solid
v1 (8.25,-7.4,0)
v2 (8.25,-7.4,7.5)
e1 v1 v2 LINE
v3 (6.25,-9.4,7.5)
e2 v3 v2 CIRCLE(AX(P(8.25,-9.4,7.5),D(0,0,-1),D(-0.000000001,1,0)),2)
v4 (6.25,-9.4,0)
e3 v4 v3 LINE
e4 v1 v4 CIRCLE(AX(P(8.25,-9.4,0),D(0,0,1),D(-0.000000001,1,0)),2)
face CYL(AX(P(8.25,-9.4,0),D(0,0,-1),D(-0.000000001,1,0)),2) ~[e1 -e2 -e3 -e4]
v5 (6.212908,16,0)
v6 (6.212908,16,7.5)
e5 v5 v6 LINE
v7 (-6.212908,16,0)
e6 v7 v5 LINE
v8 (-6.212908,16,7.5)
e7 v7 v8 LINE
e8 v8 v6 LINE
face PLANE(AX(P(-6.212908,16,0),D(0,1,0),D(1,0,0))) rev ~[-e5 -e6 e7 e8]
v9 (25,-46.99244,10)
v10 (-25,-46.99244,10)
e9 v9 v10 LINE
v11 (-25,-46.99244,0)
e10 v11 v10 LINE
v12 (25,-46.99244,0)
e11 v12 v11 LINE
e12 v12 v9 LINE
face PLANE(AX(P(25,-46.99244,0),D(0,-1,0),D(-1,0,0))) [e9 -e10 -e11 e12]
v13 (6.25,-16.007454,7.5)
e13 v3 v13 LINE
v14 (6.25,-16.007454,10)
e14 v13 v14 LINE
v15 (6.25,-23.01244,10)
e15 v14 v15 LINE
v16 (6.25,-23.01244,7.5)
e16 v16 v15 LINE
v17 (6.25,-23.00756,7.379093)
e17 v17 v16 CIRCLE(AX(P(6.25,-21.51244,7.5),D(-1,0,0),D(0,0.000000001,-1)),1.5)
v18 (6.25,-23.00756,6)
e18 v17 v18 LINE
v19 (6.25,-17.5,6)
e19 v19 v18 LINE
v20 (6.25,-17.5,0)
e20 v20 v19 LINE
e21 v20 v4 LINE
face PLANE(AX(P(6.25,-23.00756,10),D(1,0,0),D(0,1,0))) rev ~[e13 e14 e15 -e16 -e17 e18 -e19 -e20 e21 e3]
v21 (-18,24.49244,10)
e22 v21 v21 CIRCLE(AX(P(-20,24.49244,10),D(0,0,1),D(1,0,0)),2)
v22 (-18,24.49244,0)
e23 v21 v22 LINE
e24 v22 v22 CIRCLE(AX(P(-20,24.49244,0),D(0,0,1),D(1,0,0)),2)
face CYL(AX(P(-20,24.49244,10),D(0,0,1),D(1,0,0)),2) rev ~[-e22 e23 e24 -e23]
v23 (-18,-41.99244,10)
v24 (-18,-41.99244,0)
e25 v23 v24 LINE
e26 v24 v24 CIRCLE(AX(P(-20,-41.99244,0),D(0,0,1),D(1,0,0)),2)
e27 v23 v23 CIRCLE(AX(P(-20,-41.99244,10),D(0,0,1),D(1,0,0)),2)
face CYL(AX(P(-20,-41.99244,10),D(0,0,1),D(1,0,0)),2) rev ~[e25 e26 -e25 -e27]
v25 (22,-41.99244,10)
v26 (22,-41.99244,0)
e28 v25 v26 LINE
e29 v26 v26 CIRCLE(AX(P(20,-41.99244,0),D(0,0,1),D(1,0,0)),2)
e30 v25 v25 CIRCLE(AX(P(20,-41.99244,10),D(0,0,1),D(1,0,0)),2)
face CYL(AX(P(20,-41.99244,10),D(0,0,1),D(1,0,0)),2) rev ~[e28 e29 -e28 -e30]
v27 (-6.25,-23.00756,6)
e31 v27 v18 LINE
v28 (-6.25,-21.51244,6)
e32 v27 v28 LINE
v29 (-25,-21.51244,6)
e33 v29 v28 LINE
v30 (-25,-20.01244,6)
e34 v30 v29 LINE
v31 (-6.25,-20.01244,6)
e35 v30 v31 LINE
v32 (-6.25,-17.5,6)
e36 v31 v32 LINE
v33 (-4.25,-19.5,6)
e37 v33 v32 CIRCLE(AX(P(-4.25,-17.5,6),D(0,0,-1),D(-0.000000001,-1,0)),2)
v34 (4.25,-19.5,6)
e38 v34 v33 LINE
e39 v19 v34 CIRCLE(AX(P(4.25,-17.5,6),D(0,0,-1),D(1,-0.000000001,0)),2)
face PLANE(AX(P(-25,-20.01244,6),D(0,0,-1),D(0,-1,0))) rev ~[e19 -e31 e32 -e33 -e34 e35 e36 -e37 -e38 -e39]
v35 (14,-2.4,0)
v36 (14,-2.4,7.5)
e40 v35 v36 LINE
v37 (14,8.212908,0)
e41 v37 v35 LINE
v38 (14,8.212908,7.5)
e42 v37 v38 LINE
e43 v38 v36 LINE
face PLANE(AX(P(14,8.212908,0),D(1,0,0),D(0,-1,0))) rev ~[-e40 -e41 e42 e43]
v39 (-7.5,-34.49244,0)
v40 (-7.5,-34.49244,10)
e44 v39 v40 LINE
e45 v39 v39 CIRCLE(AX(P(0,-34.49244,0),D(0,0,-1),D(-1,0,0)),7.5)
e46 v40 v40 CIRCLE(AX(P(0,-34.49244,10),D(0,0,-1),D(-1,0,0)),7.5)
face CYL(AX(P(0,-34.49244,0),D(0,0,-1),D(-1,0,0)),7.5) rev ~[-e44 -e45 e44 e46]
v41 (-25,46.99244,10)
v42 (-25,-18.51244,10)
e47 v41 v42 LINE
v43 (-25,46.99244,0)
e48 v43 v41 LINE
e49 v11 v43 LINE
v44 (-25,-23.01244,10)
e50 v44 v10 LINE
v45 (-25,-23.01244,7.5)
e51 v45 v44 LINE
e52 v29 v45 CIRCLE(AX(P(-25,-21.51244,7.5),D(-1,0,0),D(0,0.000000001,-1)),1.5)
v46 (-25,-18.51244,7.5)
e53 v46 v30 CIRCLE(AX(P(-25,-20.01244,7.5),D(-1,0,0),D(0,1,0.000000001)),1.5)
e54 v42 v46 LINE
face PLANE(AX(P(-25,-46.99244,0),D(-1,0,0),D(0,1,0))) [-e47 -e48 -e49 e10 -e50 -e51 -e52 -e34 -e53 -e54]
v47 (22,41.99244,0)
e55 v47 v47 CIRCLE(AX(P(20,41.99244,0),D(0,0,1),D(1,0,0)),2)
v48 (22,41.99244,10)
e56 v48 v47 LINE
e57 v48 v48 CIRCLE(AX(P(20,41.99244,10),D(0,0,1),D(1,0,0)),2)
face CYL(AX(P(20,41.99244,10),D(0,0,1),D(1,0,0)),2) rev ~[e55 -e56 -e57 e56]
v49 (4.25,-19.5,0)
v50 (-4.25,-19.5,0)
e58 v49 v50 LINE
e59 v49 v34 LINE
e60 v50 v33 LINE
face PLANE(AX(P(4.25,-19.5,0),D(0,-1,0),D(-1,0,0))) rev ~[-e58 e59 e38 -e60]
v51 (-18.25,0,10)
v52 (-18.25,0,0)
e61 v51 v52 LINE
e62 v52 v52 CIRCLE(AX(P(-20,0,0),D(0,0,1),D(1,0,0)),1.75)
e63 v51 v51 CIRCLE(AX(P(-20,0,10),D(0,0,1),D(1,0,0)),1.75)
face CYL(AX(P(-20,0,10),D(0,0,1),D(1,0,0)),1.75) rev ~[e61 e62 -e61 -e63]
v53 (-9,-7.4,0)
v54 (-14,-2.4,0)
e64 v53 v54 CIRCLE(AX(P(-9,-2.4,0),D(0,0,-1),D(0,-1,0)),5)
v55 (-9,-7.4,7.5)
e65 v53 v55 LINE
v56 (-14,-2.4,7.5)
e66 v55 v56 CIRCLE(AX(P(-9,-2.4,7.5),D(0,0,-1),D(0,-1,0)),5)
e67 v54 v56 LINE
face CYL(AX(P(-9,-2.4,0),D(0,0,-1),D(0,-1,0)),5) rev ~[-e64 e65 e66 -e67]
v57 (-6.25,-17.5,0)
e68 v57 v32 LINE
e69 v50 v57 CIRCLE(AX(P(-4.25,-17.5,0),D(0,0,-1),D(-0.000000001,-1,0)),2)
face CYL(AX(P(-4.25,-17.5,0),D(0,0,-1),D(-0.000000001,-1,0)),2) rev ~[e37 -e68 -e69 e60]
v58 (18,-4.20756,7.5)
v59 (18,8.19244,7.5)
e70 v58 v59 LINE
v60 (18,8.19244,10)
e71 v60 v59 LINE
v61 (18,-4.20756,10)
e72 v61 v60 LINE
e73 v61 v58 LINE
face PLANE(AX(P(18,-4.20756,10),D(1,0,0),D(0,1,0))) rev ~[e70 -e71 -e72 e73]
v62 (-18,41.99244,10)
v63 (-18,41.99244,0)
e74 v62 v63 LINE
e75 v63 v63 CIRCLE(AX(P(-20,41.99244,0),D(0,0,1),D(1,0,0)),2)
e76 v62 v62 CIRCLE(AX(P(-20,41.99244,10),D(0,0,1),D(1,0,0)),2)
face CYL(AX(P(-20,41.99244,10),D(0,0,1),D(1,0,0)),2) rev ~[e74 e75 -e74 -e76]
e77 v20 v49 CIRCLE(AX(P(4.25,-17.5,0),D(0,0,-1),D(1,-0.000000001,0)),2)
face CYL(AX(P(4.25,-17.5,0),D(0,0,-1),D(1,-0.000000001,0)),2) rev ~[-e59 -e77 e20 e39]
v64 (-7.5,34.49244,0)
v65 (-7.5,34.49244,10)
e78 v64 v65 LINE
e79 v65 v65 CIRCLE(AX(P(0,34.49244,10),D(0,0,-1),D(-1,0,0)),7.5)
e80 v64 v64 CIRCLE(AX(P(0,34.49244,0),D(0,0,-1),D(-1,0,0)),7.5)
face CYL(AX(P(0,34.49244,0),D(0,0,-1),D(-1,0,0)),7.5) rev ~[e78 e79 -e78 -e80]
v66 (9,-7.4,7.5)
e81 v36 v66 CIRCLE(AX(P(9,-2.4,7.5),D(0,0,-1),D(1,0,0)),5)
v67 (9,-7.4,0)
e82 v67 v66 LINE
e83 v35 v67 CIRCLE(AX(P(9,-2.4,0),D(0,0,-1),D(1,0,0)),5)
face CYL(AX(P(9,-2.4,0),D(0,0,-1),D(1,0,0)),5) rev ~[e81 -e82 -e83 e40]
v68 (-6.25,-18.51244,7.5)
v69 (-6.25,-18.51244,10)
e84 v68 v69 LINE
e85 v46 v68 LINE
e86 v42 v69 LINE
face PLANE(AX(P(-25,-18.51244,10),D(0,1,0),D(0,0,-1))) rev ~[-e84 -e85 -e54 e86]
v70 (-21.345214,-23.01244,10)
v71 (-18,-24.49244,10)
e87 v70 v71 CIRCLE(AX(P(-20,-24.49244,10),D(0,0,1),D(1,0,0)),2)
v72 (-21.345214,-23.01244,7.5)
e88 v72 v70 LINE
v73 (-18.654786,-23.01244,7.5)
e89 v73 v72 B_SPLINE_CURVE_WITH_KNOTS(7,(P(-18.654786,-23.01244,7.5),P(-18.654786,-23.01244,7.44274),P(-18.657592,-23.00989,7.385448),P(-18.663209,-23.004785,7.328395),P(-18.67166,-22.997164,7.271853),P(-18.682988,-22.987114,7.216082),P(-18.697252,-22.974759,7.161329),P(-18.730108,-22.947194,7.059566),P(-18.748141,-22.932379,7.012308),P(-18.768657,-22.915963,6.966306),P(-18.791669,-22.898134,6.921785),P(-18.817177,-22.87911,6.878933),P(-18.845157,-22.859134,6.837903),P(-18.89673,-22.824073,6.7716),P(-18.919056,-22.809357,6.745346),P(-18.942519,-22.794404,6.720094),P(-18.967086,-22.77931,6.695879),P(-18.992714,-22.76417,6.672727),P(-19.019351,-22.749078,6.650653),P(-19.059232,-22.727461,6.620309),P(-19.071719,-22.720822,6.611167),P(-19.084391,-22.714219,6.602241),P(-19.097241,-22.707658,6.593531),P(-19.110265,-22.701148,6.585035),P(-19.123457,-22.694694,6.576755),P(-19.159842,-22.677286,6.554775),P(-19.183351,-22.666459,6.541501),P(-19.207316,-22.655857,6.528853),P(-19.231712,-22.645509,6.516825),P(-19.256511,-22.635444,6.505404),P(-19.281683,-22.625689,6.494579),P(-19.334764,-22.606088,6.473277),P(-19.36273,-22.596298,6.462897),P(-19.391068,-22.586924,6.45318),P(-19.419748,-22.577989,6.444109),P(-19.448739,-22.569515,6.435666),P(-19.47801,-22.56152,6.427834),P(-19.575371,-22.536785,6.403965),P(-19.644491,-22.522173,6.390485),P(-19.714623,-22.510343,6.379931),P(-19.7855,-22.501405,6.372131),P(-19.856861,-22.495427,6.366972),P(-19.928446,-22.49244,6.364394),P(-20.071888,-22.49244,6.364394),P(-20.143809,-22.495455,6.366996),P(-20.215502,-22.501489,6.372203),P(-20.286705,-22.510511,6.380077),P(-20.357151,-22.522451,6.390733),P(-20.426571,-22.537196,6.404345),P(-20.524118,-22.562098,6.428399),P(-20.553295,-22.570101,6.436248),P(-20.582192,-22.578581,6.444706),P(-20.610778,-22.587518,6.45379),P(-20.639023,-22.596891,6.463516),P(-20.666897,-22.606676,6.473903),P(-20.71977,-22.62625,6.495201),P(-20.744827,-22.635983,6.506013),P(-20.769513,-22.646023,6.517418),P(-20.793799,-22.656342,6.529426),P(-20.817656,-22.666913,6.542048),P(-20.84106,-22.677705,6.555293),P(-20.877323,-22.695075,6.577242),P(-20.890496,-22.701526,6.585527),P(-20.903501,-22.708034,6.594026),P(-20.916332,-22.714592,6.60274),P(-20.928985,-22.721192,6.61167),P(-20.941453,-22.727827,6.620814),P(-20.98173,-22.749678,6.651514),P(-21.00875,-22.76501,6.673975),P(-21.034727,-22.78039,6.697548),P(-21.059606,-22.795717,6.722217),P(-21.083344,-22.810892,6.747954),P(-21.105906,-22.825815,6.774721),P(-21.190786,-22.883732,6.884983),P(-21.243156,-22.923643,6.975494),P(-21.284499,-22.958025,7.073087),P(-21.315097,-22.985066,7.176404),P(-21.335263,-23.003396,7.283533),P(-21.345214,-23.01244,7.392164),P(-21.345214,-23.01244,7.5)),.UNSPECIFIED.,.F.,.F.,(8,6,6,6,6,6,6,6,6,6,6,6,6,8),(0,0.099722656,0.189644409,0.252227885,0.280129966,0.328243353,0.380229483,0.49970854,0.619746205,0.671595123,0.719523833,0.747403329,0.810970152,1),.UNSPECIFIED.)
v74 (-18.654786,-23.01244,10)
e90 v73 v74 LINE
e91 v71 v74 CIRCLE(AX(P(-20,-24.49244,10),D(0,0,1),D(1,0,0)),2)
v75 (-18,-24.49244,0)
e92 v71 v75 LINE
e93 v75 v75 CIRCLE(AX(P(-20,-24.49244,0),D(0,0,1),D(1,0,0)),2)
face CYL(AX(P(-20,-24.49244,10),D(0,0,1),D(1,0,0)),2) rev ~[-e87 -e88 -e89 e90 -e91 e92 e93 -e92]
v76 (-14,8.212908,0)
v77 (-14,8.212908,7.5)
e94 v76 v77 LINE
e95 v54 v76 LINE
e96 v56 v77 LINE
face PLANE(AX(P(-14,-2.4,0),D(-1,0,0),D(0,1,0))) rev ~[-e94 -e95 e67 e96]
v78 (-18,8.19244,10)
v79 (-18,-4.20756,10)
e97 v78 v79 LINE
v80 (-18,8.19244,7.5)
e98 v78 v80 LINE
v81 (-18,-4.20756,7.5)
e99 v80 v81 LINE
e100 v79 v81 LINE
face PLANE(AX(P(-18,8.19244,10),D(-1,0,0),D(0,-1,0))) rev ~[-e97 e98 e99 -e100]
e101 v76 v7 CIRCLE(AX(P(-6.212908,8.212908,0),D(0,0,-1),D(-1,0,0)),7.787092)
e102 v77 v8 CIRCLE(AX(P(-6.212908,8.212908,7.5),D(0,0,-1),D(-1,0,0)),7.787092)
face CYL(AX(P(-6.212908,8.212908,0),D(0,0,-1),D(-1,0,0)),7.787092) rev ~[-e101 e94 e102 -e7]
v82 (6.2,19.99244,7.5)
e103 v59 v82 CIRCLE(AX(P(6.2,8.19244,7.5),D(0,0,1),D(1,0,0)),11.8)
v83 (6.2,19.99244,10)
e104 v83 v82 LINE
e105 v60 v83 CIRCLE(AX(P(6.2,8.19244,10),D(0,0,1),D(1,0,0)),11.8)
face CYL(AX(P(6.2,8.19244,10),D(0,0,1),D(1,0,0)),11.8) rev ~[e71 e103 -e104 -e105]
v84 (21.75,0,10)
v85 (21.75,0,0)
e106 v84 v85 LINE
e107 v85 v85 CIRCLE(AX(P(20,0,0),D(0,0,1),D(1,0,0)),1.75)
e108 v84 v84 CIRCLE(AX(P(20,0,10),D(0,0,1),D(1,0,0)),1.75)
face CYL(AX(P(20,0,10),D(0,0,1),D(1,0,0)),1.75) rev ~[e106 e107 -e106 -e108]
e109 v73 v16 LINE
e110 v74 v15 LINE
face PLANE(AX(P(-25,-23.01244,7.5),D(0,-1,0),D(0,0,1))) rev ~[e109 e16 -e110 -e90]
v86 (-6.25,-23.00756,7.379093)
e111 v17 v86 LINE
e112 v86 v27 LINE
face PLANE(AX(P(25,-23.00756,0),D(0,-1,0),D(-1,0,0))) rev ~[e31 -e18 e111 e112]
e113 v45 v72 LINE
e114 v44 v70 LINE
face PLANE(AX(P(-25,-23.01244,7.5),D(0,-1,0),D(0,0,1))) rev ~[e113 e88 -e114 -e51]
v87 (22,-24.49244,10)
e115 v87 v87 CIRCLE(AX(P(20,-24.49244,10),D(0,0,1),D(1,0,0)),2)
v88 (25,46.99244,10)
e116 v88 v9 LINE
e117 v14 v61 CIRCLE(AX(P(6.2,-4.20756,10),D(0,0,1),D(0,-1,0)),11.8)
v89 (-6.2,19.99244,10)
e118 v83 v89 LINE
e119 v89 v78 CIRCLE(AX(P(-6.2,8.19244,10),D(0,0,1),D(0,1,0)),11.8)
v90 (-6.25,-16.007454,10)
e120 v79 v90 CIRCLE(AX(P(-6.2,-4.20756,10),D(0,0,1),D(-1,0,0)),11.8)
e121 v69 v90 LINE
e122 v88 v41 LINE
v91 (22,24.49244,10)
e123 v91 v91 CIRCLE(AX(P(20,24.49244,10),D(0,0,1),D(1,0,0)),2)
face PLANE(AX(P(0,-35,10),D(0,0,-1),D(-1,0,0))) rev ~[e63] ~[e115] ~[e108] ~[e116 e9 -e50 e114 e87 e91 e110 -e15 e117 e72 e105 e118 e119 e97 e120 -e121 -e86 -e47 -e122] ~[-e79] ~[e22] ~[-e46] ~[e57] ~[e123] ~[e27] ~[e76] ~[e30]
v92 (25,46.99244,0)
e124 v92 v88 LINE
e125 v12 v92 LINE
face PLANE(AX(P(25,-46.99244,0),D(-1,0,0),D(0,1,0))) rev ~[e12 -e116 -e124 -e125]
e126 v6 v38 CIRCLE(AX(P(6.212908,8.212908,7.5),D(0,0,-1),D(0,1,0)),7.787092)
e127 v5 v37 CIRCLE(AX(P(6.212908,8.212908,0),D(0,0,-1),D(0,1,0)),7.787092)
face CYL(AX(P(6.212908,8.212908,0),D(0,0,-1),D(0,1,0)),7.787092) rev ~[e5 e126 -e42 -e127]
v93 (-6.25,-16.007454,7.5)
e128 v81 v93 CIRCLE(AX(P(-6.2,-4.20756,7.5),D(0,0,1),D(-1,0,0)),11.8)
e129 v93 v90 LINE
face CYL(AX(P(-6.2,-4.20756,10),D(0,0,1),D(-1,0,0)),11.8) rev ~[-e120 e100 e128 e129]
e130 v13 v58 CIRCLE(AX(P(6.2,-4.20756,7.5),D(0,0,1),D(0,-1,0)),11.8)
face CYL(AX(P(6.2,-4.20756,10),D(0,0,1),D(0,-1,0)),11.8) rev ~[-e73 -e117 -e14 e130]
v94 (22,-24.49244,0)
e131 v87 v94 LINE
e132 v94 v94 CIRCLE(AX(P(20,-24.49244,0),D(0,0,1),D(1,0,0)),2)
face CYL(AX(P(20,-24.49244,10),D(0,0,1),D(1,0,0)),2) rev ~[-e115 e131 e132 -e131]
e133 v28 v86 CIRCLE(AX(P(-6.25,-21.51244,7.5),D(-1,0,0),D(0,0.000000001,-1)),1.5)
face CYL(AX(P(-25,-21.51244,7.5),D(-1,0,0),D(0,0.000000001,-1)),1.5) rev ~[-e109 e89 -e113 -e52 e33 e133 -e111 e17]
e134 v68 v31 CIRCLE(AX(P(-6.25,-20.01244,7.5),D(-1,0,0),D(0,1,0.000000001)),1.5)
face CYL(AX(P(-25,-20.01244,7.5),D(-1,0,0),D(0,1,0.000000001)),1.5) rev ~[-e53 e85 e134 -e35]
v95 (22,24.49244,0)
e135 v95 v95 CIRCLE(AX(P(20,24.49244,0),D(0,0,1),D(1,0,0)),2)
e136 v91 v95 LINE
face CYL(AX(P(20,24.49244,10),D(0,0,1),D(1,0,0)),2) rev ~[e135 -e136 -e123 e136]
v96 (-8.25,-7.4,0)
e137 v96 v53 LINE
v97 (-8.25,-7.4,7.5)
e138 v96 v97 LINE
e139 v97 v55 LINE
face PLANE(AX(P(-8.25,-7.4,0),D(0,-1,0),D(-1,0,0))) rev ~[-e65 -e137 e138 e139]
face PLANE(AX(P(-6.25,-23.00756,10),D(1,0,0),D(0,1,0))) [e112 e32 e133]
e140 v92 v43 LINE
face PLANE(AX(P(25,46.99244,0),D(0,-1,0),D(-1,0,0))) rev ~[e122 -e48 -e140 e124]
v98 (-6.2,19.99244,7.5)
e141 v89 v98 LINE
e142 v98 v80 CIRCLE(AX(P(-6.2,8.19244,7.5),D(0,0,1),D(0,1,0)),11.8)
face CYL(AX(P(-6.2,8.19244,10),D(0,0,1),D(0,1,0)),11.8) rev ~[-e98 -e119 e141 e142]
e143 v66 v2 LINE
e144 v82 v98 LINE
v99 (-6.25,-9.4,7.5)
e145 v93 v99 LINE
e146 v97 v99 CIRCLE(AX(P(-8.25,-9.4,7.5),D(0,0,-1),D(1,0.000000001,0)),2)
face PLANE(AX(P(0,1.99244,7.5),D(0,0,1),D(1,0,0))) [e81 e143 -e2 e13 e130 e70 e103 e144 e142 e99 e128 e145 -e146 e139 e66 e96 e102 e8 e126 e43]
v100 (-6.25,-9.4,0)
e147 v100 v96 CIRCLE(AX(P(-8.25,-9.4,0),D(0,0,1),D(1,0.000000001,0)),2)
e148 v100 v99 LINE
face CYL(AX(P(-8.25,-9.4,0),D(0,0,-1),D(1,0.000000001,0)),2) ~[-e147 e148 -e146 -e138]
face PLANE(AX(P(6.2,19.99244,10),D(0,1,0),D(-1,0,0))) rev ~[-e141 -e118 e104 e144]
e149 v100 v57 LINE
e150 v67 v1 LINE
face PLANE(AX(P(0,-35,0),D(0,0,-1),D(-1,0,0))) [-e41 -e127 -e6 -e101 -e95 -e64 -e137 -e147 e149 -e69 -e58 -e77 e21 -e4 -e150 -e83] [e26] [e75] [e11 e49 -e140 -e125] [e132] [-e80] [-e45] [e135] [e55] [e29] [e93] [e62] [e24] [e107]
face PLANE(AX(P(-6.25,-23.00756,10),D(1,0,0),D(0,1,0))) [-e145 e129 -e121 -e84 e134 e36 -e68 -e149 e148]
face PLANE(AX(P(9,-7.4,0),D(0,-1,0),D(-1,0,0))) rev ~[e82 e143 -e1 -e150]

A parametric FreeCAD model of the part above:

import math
import FreeCAD as App
import Part
import Sketcher
from FreeCAD import Vector
Q = App.Units.Quantity


def add_polygon(sketch, points):
    """Adds a closed chain of lines whose ends are joined by coincident constraints."""
    first, n = sketch.GeometryCount, len(points)
    for a, b in zip(points, points[1:] + points[:1]):
        sketch.addGeometry(Part.LineSegment(App.Vector(*a, 0), App.Vector(*b, 0)), False)
    for i in range(n):
        sketch.addConstraint(Sketcher.Constraint("Coincident", first + i, 2, first + (i + 1) % n, 1))

doc = App.newDocument("Part")
body = doc.addObject("PartDesign::Body", "Body")

# Sketch on XY plane
sketch1 = body.newObject("Sketcher::SketchObject", "Sketch")
sketch1.AttachmentSupport = (doc.getObject("XY_Plane"), [""])
sketch1.MapMode = "FlatFace"
sketch1.addGeometry(Part.LineSegment(Vector(7, 19, 0), Vector(-7, 19, 0)), False)
sketch1.addGeometry(Part.ArcOfCircle(Part.Circle(Vector(-7, 9, 0), Vector(0, 0, 1), 10), math.radians(90), math.radians(180)), False)
sketch1.addGeometry(Part.LineSegment(Vector(-17, 9, 0), Vector(-17, -5, 0)), False)
sketch1.addGeometry(Part.ArcOfCircle(Part.Circle(Vector(-7, -5, 0), Vector(0, 0, 1), 10), math.radians(180), math.radians(270)), False)
sketch1.addGeometry(Part.LineSegment(Vector(-7, -15, 0), Vector(7, -15, 0)), False)
sketch1.addGeometry(Part.ArcOfCircle(Part.Circle(Vector(7, -5, 0), Vector(0, 0, 1), 10), math.radians(-90), math.radians(0)), False)
sketch1.addGeometry(Part.LineSegment(Vector(17, -5, 0), Vector(17, 9, 0)), False)
sketch1.addGeometry(Part.ArcOfCircle(Part.Circle(Vector(7, 9, 0), Vector(0, 0, 1), 10), math.radians(0), math.radians(90)), False)
sketch1.addConstraint(Sketcher.Constraint("Tangent", 0, 2, 1, 1))
sketch1.addConstraint(Sketcher.Constraint("Tangent", 1, 2, 2, 1))
sketch1.addConstraint(Sketcher.Constraint("Tangent", 2, 2, 3, 1))
sketch1.addConstraint(Sketcher.Constraint("Tangent", 3, 2, 4, 1))
sketch1.addConstraint(Sketcher.Constraint("Tangent", 4, 2, 5, 1))
sketch1.addConstraint(Sketcher.Constraint("Tangent", 5, 2, 6, 1))
sketch1.addConstraint(Sketcher.Constraint("Tangent", 6, 2, 7, 1))
sketch1.addConstraint(Sketcher.Constraint("Tangent", 7, 2, 0, 1))
sketch1.addConstraint(Sketcher.Constraint("Horizontal", 0))
sketch1.addConstraint(Sketcher.Constraint("Vertical", 2))
sketch1.addConstraint(Sketcher.Constraint("Horizontal", 4))
sketch1.addConstraint(Sketcher.Constraint("Vertical", 6))
sketch1.addConstraint(Sketcher.Constraint("Equal", 1, 3))
sketch1.addConstraint(Sketcher.Constraint("Equal", 3, 5))
sketch1.addConstraint(Sketcher.Constraint("Equal", 5, 7))
sketch1.addConstraint(Sketcher.Constraint("Equal", 4, 2))
sketch1.addConstraint(Sketcher.Constraint("Radius", 1, Q("10 mm")))
sketch1.addConstraint(Sketcher.Constraint("DistanceX", 0, 2, 0, 1, Q("14 mm")))
sketch1.addConstraint(Sketcher.Constraint("DistanceX", 1, 3, -1, 1, Q("7 mm")))
sketch1.addConstraint(Sketcher.Constraint("DistanceY", -1, 1, 1, 3, Q("9 mm")))
pad1 = body.newObject("PartDesign::Pad", "Pad")
pad1.Profile = sketch1
pad1.Length = 10

# Sketch on XY plane
sketch2 = body.newObject("Sketcher::SketchObject", "Sketch001")
sketch2.AttachmentSupport = (doc.getObject("XY_Plane"), [""])
sketch2.MapMode = "FlatFace"
sketch2.addGeometry(Part.ArcOfCircle(Part.Circle(Vector(-6.212908, 8.212908, 0), Vector(0, 0, 1), 7.787092), math.radians(90), math.radians(180)), False)
sketch2.addGeometry(Part.LineSegment(Vector(-6.212908, 16, 0), Vector(6.212908, 16, 0)), False)
sketch2.addGeometry(Part.ArcOfCircle(Part.Circle(Vector(6.212908, 8.212908, 0), Vector(0, 0, 1), 7.787092), math.radians(0), math.radians(90)), False)
sketch2.addGeometry(Part.LineSegment(Vector(14, 8.212908, 0), Vector(14, -2.4, 0)), False)
sketch2.addGeometry(Part.ArcOfCircle(Part.Circle(Vector(9, -2.4, 0), Vector(0, 0, 1), 5), math.radians(-90), math.radians(0)), False)
sketch2.addGeometry(Part.LineSegment(Vector(9, -7.4, 0), Vector(8.25, -7.4, 0)), False)
sketch2.addGeometry(Part.ArcOfCircle(Part.Circle(Vector(8.25, -9.4, 0), Vector(0, 0, 1), 2), math.radians(90), math.radians(180)), False)
sketch2.addGeometry(Part.LineSegment(Vector(6.25, -9.4, 0), Vector(6.25, -17.625395, 0)), False)
sketch2.addGeometry(Part.LineSegment(Vector(6.25, -17.625395, 0), Vector(-6.25, -17.625395, 0)), False)
sketch2.addGeometry(Part.LineSegment(Vector(-6.25, -17.625395, 0), Vector(-6.25, -9.4, 0)), False)
sketch2.addGeometry(Part.ArcOfCircle(Part.Circle(Vector(-8.25, -9.4, 0), Vector(0, 0, 1), 2), math.radians(0), math.radians(90)), False)
sketch2.addGeometry(Part.LineSegment(Vector(-8.25, -7.4, 0), Vector(-9, -7.4, 0)), False)
sketch2.addGeometry(Part.ArcOfCircle(Part.Circle(Vector(-9, -2.4, 0), Vector(0, 0, 1), 5), math.radians(180), math.radians(270)), False)
sketch2.addGeometry(Part.LineSegment(Vector(-14, -2.4, 0), Vector(-14, 8.212908, 0)), False)
sketch2.addConstraint(Sketcher.Constraint("Tangent", 0, 1, 1, 1))
sketch2.addConstraint(Sketcher.Constraint("Tangent", 1, 2, 2, 2))
sketch2.addConstraint(Sketcher.Constraint("Tangent", 2, 1, 3, 1))
sketch2.addConstraint(Sketcher.Constraint("Tangent", 3, 2, 4, 2))
sketch2.addConstraint(Sketcher.Constraint("Tangent", 4, 1, 5, 1))
sketch2.addConstraint(Sketcher.Constraint("Tangent", 5, 2, 6, 1))
sketch2.addConstraint(Sketcher.Constraint("Tangent", 6, 2, 7, 1))
sketch2.addConstraint(Sketcher.Constraint("Coincident", 7, 2, 8, 1))
sketch2.addConstraint(Sketcher.Constraint("Coincident", 8, 2, 9, 1))
sketch2.addConstraint(Sketcher.Constraint("Tangent", 9, 2, 10, 1))
sketch2.addConstraint(Sketcher.Constraint("Tangent", 10, 2, 11, 1))
sketch2.addConstraint(Sketcher.Constraint("Tangent", 11, 2, 12, 2))
sketch2.addConstraint(Sketcher.Constraint("Tangent", 12, 1, 13, 1))
sketch2.addConstraint(Sketcher.Constraint("Tangent", 13, 2, 0, 2))
sketch2.addConstraint(Sketcher.Constraint("Horizontal", 1))
sketch2.addConstraint(Sketcher.Constraint("Vertical", 3))
sketch2.addConstraint(Sketcher.Constraint("Horizontal", 5))
sketch2.addConstraint(Sketcher.Constraint("Vertical", 7))
sketch2.addConstraint(Sketcher.Constraint("Horizontal", 8))
sketch2.addConstraint(Sketcher.Constraint("Vertical", 9))
sketch2.addConstraint(Sketcher.Constraint("Horizontal", 11))
sketch2.addConstraint(Sketcher.Constraint("Vertical", 13))
sketch2.addConstraint(Sketcher.Constraint("Equal", 0, 2))
sketch2.addConstraint(Sketcher.Constraint("Equal", 6, 10))
sketch2.addConstraint(Sketcher.Constraint("Equal", 4, 12))
sketch2.addConstraint(Sketcher.Constraint("Symmetric", 6, 3, 10, 3, -2))
sketch2.addConstraint(Sketcher.Constraint("Equal", 5, 11))
sketch2.addConstraint(Sketcher.Constraint("Radius", 4, Q("5 mm")))
sketch2.addConstraint(Sketcher.Constraint("Radius", 6, Q("2 mm")))
sketch2.addConstraint(Sketcher.Constraint("DistanceX", 8, 2, 8, 1, Q("12.5 mm")))
sketch2.addConstraint(Sketcher.Constraint("DistanceX", -1, 1, 4, 3, Q("9 mm")))
sketch2.addConstraint(Sketcher.Constraint("DistanceY", -1, 1, 0, 1, Q("16 mm")))
sketch2.addConstraint(Sketcher.Constraint("DistanceY", 4, 3, -1, 1, Q("2.4 mm")))
sketch2.addConstraint(Sketcher.Constraint("Radius", 0, Q("7.787092 mm")))
sketch2.addConstraint(Sketcher.Constraint("DistanceY", 7, 2, 7, 1, Q("8.225395 mm")))
pocket1 = body.newObject("PartDesign::Pocket", "Pocket")
pocket1.Profile = sketch2
pocket1.Type = "ThroughAll"
pocket1.Reversed = True

# Sketch on XY plane
sketch3 = body.newObject("Sketcher::SketchObject", "Sketch002")
sketch3.AttachmentSupport = (doc.getObject("XY_Plane"), [""])
sketch3.MapMode = "FlatFace"
add_polygon(sketch3, [(25, 21.99244), (25, -23.00756), (-25, -23.00756), (-25, 21.99244)])  # lines 0-3
sketch3.addGeometry(Part.LineSegment(Vector(6.25, -17.5, 0), Vector(6.25, -9.4, 0)), False)  # 4
sketch3.addGeometry(Part.ArcOfCircle(Part.Circle(Vector(8.25, -9.4, 0), Vector(0, 0, 1), 2), math.radians(90), math.radians(180)), False)  # 5
sketch3.addGeometry(Part.LineSegment(Vector(8.25, -7.4, 0), Vector(9, -7.4, 0)), False)  # 6
sketch3.addGeometry(Part.ArcOfCircle(Part.Circle(Vector(9, -2.4, 0), Vector(0, 0, 1), 5), math.radians(-90), math.radians(0)), False)  # 7
sketch3.addGeometry(Part.LineSegment(Vector(14, -2.4, 0), Vector(14, 8.212908, 0)), False)  # 8
sketch3.addGeometry(Part.ArcOfCircle(Part.Circle(Vector(6.212908, 8.212908, 0), Vector(0, 0, 1), 7.787092), math.radians(0), math.radians(90)), False)  # 9
sketch3.addGeometry(Part.LineSegment(Vector(6.212908, 16, 0), Vector(-6.212908, 16, 0)), False)  # 10
sketch3.addGeometry(Part.ArcOfCircle(Part.Circle(Vector(-6.212908, 8.212908, 0), Vector(0, 0, 1), 7.787092), math.radians(90), math.radians(180)), False)  # 11
sketch3.addGeometry(Part.LineSegment(Vector(-14, 8.212908, 0), Vector(-14, -2.4, 0)), False)  # 12
sketch3.addGeometry(Part.ArcOfCircle(Part.Circle(Vector(-9, -2.4, 0), Vector(0, 0, 1), 5), math.radians(180), math.radians(270)), False)  # 13
sketch3.addGeometry(Part.LineSegment(Vector(-9, -7.4, 0), Vector(-8.25, -7.4, 0)), False)  # 14
sketch3.addGeometry(Part.ArcOfCircle(Part.Circle(Vector(-8.25, -9.4, 0), Vector(0, 0, 1), 2), math.radians(0), math.radians(90)), False)  # 15
sketch3.addGeometry(Part.LineSegment(Vector(-6.25, -9.4, 0), Vector(-6.25, -17.5, 0)), False)  # 16
sketch3.addGeometry(Part.ArcOfCircle(Part.Circle(Vector(-4.25, -17.5, 0), Vector(0, 0, 1), 2), math.radians(-180), math.radians(-90)), False)  # 17
sketch3.addGeometry(Part.LineSegment(Vector(-4.25, -19.5, 0), Vector(4.25, -19.5, 0)), False)  # 18
sketch3.addGeometry(Part.ArcOfCircle(Part.Circle(Vector(4.25, -17.5, 0), Vector(0, 0, 1), 2), math.radians(-90), math.radians(0)), False)  # 19
sketch3.addConstraint(Sketcher.Constraint("Tangent", 4, 2, 5, 2))
sketch3.addConstraint(Sketcher.Constraint("Tangent", 5, 1, 6, 1))
sketch3.addConstraint(Sketcher.Constraint("Tangent", 6, 2, 7, 1))
sketch3.addConstraint(Sketcher.Constraint("Tangent", 7, 2, 8, 1))
sketch3.addConstraint(Sketcher.Constraint("Tangent", 8, 2, 9, 1))
sketch3.addConstraint(Sketcher.Constraint("Tangent", 9, 2, 10, 1))
sketch3.addConstraint(Sketcher.Constraint("Tangent", 10, 2, 11, 1))
sketch3.addConstraint(Sketcher.Constraint("Tangent", 11, 2, 12, 1))
sketch3.addConstraint(Sketcher.Constraint("Tangent", 12, 2, 13, 1))
sketch3.addConstraint(Sketcher.Constraint("Tangent", 13, 2, 14, 1))
sketch3.addConstraint(Sketcher.Constraint("Tangent", 14, 2, 15, 2))
sketch3.addConstraint(Sketcher.Constraint("Tangent", 15, 1, 16, 1))
sketch3.addConstraint(Sketcher.Constraint("Tangent", 16, 2, 17, 1))
sketch3.addConstraint(Sketcher.Constraint("Tangent", 17, 2, 18, 1))
sketch3.addConstraint(Sketcher.Constraint("Tangent", 18, 2, 19, 1))
sketch3.addConstraint(Sketcher.Constraint("Tangent", 19, 2, 4, 1))
sketch3.addConstraint(Sketcher.Constraint("Vertical", 0))
sketch3.addConstraint(Sketcher.Constraint("Horizontal", 1))
sketch3.addConstraint(Sketcher.Constraint("Vertical", 2))
sketch3.addConstraint(Sketcher.Constraint("Horizontal", 3))
sketch3.addConstraint(Sketcher.Constraint("Vertical", 4))
sketch3.addConstraint(Sketcher.Constraint("Horizontal", 6))
sketch3.addConstraint(Sketcher.Constraint("Vertical", 8))
sketch3.addConstraint(Sketcher.Constraint("Horizontal", 10))
sketch3.addConstraint(Sketcher.Constraint("Vertical", 12))
sketch3.addConstraint(Sketcher.Constraint("Horizontal", 14))
sketch3.addConstraint(Sketcher.Constraint("Vertical", 16))
sketch3.addConstraint(Sketcher.Constraint("Horizontal", 18))
sketch3.addConstraint(Sketcher.Constraint("Equal", 9, 11))
sketch3.addConstraint(Sketcher.Constraint("Equal", 7, 13))
sketch3.addConstraint(Sketcher.Constraint("Equal", 5, 15))
sketch3.addConstraint(Sketcher.Constraint("Equal", 15, 17))
sketch3.addConstraint(Sketcher.Constraint("Equal", 17, 19))
sketch3.addConstraint(Sketcher.Constraint("Symmetric", 7, 3, 13, 3, -2))
sketch3.addConstraint(Sketcher.Constraint("Equal", 6, 14))
sketch3.addConstraint(Sketcher.Constraint("Radius", 5, Q("2 mm")))
sketch3.addConstraint(Sketcher.Constraint("Radius", 7, Q("5 mm")))
sketch3.addConstraint(Sketcher.Constraint("DistanceX", 1, 2, 1, 1, Q("50 mm")))
sketch3.addConstraint(Sketcher.Constraint("DistanceY", 0, 2, 0, 1, Q("45 mm")))
sketch3.addConstraint(Sketcher.Constraint("DistanceX", 18, 1, 18, 2, Q("8.5 mm")))
sketch3.addConstraint(Sketcher.Constraint("DistanceY", 4, 1, 4, 2, Q("8.1 mm")))
sketch3.addConstraint(Sketcher.Constraint("DistanceX", -1, 1, 7, 3, Q("9 mm")))
sketch3.addConstraint(Sketcher.Constraint("DistanceX", -1, 1, 0, 2, Q("25 mm")))
sketch3.addConstraint(Sketcher.Constraint("DistanceY", -1, 1, 9, 2, Q("16 mm")))
sketch3.addConstraint(Sketcher.Constraint("DistanceY", 5, 3, -1, 1, Q("9.4 mm")))
sketch3.addConstraint(Sketcher.Constraint("Radius", 9, Q("7.787092 mm")))
sketch3.addConstraint(Sketcher.Constraint("DistanceY", 0, 2, -1, 1, Q("23.00756 mm")))
pad2 = body.newObject("PartDesign::Pad", "Pad001")
pad2.Profile = sketch3
pad2.Length = 10

# Sketch on XY plane
sketch4 = body.newObject("Sketcher::SketchObject", "Sketch003")
sketch4.AttachmentSupport = (doc.getObject("XY_Plane"), [""])
sketch4.MapMode = "FlatFace"
sketch4.AttachmentOffset = App.Placement(Vector(0, 0, 10), App.Rotation())
sketch4.addGeometry(Part.LineSegment(Vector(-18, 8.19244, 0), Vector(-18, -4.20756, 0)), False)
sketch4.addGeometry(Part.ArcOfCircle(Part.Circle(Vector(-6.2, -4.20756, 0), Vector(0, 0, 1), 11.8), math.radians(180), math.radians(270)), False)
sketch4.addGeometry(Part.LineSegment(Vector(-6.2, -16.00756, 0), Vector(6.2, -16.00756, 0)), False)
sketch4.addGeometry(Part.ArcOfCircle(Part.Circle(Vector(6.2, -4.20756, 0), Vector(0, 0, 1), 11.8), math.radians(-90), math.radians(0)), False)
sketch4.addGeometry(Part.LineSegment(Vector(18, -4.20756, 0), Vector(18, 8.19244, 0)), False)
sketch4.addGeometry(Part.ArcOfCircle(Part.Circle(Vector(6.2, 8.19244, 0), Vector(0, 0, 1), 11.8), math.radians(0), math.radians(90)), False)
sketch4.addGeometry(Part.LineSegment(Vector(6.2, 19.99244, 0), Vector(-6.2, 19.99244, 0)), False)
sketch4.addGeometry(Part.ArcOfCircle(Part.Circle(Vector(-6.2, 8.19244, 0), Vector(0, 0, 1), 11.8), math.radians(90), math.radians(180)), False)
sketch4.addConstraint(Sketcher.Constraint("Tangent", 0, 2, 1, 1))
sketch4.addConstraint(Sketcher.Constraint("Tangent", 1, 2, 2, 1))
sketch4.addConstraint(Sketcher.Constraint("Tangent", 2, 2, 3, 1))
sketch4.addConstraint(Sketcher.Constraint("Tangent", 3, 2, 4, 1))
sketch4.addConstraint(Sketcher.Constraint("Tangent", 4, 2, 5, 1))
sketch4.addConstraint(Sketcher.Constraint("Tangent", 5, 2, 6, 1))
sketch4.addConstraint(Sketcher.Constraint("Tangent", 6, 2, 7, 1))
sketch4.addConstraint(Sketcher.Constraint("Tangent", 7, 2, 0, 1))
sketch4.addConstraint(Sketcher.Constraint("Vertical", 0))
sketch4.addConstraint(Sketcher.Constraint("Horizontal", 2))
sketch4.addConstraint(Sketcher.Constraint("Vertical", 4))
sketch4.addConstraint(Sketcher.Constraint("Horizontal", 6))
sketch4.addConstraint(Sketcher.Constraint("Equal", 1, 3))
sketch4.addConstraint(Sketcher.Constraint("Equal", 3, 5))
sketch4.addConstraint(Sketcher.Constraint("Equal", 5, 7))
sketch4.addConstraint(Sketcher.Constraint("Equal", 6, 0))
sketch4.addConstraint(Sketcher.Constraint("Radius", 1, Q("11.8 mm")))
sketch4.addConstraint(Sketcher.Constraint("DistanceX", 2, 1, 2, 2, Q("12.4 mm")))
sketch4.addConstraint(Sketcher.Constraint("DistanceX", 0, 2, -1, 1, Q("18 mm")))
sketch4.addConstraint(Sketcher.Constraint("DistanceY", 1, 3, -1, 1, Q("4.20756 mm")))
pocket2 = body.newObject("PartDesign::Pocket", "Pocket001")
pocket2.Profile = sketch4
pocket2.Length = 2.5

# Sketch on XY plane
sketch5 = body.newObject("Sketcher::SketchObject", "Sketch004")
sketch5.AttachmentSupport = (doc.getObject("XY_Plane"), [""])
sketch5.MapMode = "FlatFace"
sketch5.AttachmentOffset = App.Placement(Vector(0, 0, 10), App.Rotation())
add_polygon(sketch5, [(-6.25, -16.753727), (-6.25, -23.00756), (6.25, -23.00756), (6.25, -16.753727)])  # lines 0-3
sketch5.addConstraint(Sketcher.Constraint("Vertical", 0))
sketch5.addConstraint(Sketcher.Constraint("Horizontal", 1))
sketch5.addConstraint(Sketcher.Constraint("Vertical", 2))
sketch5.addConstraint(Sketcher.Constraint("Horizontal", 3))
sketch5.addConstraint(Sketcher.Constraint("DistanceX", 1, 1, 1, 2, Q("12.5 mm")))
sketch5.addConstraint(Sketcher.Constraint("DistanceX", 0, 2, -1, 1, Q("6.25 mm")))
sketch5.addConstraint(Sketcher.Constraint("DistanceY", 0, 2, 0, 1, Q("6.253833 mm")))
sketch5.addConstraint(Sketcher.Constraint("DistanceY", 0, 2, -1, 1, Q("23.00756 mm")))
pocket3 = body.newObject("PartDesign::Pocket", "Pocket002")
pocket3.Profile = sketch5
pocket3.Length = 4

# Sketch on XY plane
sketch6 = body.newObject("Sketcher::SketchObject", "Sketch005")
sketch6.AttachmentSupport = (doc.getObject("XY_Plane"), [""])
sketch6.MapMode = "FlatFace"
add_polygon(sketch6, [(25, -23.00756), (25, -46.99244), (-25, -46.99244), (-25, -23.00756)])  # lines 0-3
sketch6.addGeometry(Part.Circle(Vector(0, -34.49244, 0), Vector(0, 0, 1), 7.5), False)  # 4
add_polygon(sketch6, [(25, 46.99244), (25, 21.99244), (-25, 21.99244), (-25, 46.99244)])  # lines 5-8
sketch6.addGeometry(Part.Circle(Vector(0, 34.49244, 0), Vector(0, 0, 1), 7.5), False)  # 9
sketch6.addConstraint(Sketcher.Constraint("Vertical", 0))
sketch6.addConstraint(Sketcher.Constraint("Horizontal", 1))
sketch6.addConstraint(Sketcher.Constraint("Vertical", 2))
sketch6.addConstraint(Sketcher.Constraint("Horizontal", 3))
sketch6.addConstraint(Sketcher.Constraint("Vertical", 5))
sketch6.addConstraint(Sketcher.Constraint("Horizontal", 6))
sketch6.addConstraint(Sketcher.Constraint("Vertical", 7))
sketch6.addConstraint(Sketcher.Constraint("Horizontal", 8))
sketch6.addConstraint(Sketcher.Constraint("Equal", 4, 9))
sketch6.addConstraint(Sketcher.Constraint("Symmetric", 4, 3, 9, 3, -1, 1))
sketch6.addConstraint(Sketcher.Constraint("Symmetric", 0, 2, 7, 2, -1, 1))
sketch6.addConstraint(Sketcher.Constraint("PointOnObject", 4, 3, -2))
sketch6.addConstraint(Sketcher.Constraint("Vertical", 3, 2, 5, 2))
sketch6.addConstraint(Sketcher.Constraint("Vertical", 2, 2, 6, 2))
sketch6.addConstraint(Sketcher.Constraint("Diameter", 4, Q("15 mm")))
sketch6.addConstraint(Sketcher.Constraint("DistanceX", 1, 2, 1, 1, Q("50 mm")))
sketch6.addConstraint(Sketcher.Constraint("DistanceY", 5, 2, 5, 1, Q("25 mm")))
sketch6.addConstraint(Sketcher.Constraint("DistanceY", 3, 2, 5, 2, Q("45 mm")))
sketch6.addConstraint(Sketcher.Constraint("DistanceY", 0, 2, 4, 3, Q("12.5 mm")))
sketch6.addConstraint(Sketcher.Constraint("DistanceY", 0, 2, 0, 1, Q("23.984881 mm")))
pad3 = body.newObject("PartDesign::Pad", "Pad002")
pad3.Profile = sketch6
pad3.Length = 10

# Sketch on YZ plane
sketch7 = body.newObject("Sketcher::SketchObject", "Sketch006")
sketch7.AttachmentSupport = (doc.getObject("YZ_Plane"), [""])
sketch7.MapMode = "FlatFace"
sketch7.AttachmentOffset = App.Placement(Vector(0, 0, -25), App.Rotation())
sketch7.addGeometry(Part.LineSegment(Vector(-18.51244, 10, 0), Vector(-18.51244, 7.5, 0)), False)
sketch7.addGeometry(Part.ArcOfCircle(Part.Circle(Vector(-20.01244, 7.5, 0), Vector(0, 0, 1), 1.5), math.radians(-90), math.radians(0)), False)
sketch7.addGeometry(Part.LineSegment(Vector(-20.01244, 6, 0), Vector(-21.51244, 6, 0)), False)
sketch7.addGeometry(Part.ArcOfCircle(Part.Circle(Vector(-21.51244, 7.5, 0), Vector(0, 0, 1), 1.5), math.radians(180), math.radians(270)), False)
sketch7.addGeometry(Part.LineSegment(Vector(-23.01244, 7.5, 0), Vector(-23.01244, 10, 0)), False)
sketch7.addGeometry(Part.LineSegment(Vector(-23.01244, 10, 0), Vector(-18.51244, 10, 0)), False)
sketch7.addConstraint(Sketcher.Constraint("Tangent", 0, 2, 1, 2))
sketch7.addConstraint(Sketcher.Constraint("Tangent", 1, 1, 2, 1))
sketch7.addConstraint(Sketcher.Constraint("Tangent", 2, 2, 3, 2))
sketch7.addConstraint(Sketcher.Constraint("Tangent", 3, 1, 4, 1))
sketch7.addConstraint(Sketcher.Constraint("Coincident", 4, 2, 5, 1))
sketch7.addConstraint(Sketcher.Constraint("Coincident", 5, 2, 0, 1))
sketch7.addConstraint(Sketcher.Constraint("Vertical", 0))
sketch7.addConstraint(Sketcher.Constraint("Horizontal", 2))
sketch7.addConstraint(Sketcher.Constraint("Vertical", 4))
sketch7.addConstraint(Sketcher.Constraint("Horizontal", 5))
sketch7.addConstraint(Sketcher.Constraint("Equal", 1, 3))
sketch7.addConstraint(Sketcher.Constraint("Radius", 1, Q("1.5 mm")))
sketch7.addConstraint(Sketcher.Constraint("DistanceX", 2, 2, 2, 1, Q("1.5 mm")))
sketch7.addConstraint(Sketcher.Constraint("DistanceY", 0, 2, 0, 1, Q("2.5 mm")))
sketch7.addConstraint(Sketcher.Constraint("DistanceY", -1, 1, 1, 1, Q("6 mm")))
sketch7.addConstraint(Sketcher.Constraint("DistanceX", 1, 3, -1, 1, Q("20.01244 mm")))
pocket4 = body.newObject("PartDesign::Pocket", "Pocket003")
pocket4.Profile = sketch7
pocket4.Length = 31.25
pocket4.Reversed = True

# Sketch on XY plane
sketch8 = body.newObject("Sketcher::SketchObject", "Sketch007")
sketch8.AttachmentSupport = (doc.getObject("XY_Plane"), [""])
sketch8.MapMode = "FlatFace"
sketch8.AttachmentOffset = App.Placement(Vector(0, 0, 10), App.Rotation())
sketch8.addGeometry(Part.Circle(Vector(-20, 41.99244, 0), Vector(0, 0, 1), 2), False)
sketch8.addGeometry(Part.Circle(Vector(20, 41.99244, 0), Vector(0, 0, 1), 2), False)
sketch8.addGeometry(Part.Circle(Vector(-20, 0, 0), Vector(0, 0, 1), 1.75), False)
sketch8.addGeometry(Part.Circle(Vector(20, 0, 0), Vector(0, 0, 1), 1.75), False)
sketch8.addGeometry(Part.Circle(Vector(20, -41.99244, 0), Vector(0, 0, 1), 2), False)
sketch8.addGeometry(Part.Circle(Vector(-20, -41.99244, 0), Vector(0, 0, 1), 2), False)
sketch8.addConstraint(Sketcher.Constraint("Equal", 0, 1))
sketch8.addConstraint(Sketcher.Constraint("Equal", 2, 3))
sketch8.addConstraint(Sketcher.Constraint("Equal", 1, 4))
sketch8.addConstraint(Sketcher.Constraint("Equal", 4, 5))
sketch8.addConstraint(Sketcher.Constraint("Symmetric", 2, 3, 3, 3, -1, 1))
sketch8.addConstraint(Sketcher.Constraint("Symmetric", 0, 3, 4, 3, -1, 1))
sketch8.addConstraint(Sketcher.Constraint("Symmetric", 1, 3, 5, 3, -1, 1))
sketch8.addConstraint(Sketcher.Constraint("Symmetric", 0, 3, 1, 3, -2))
sketch8.addConstraint(Sketcher.Constraint("PointOnObject", 2, 3, -1))
sketch8.addConstraint(Sketcher.Constraint("Vertical", 0, 3, 2, 3))
sketch8.addConstraint(Sketcher.Constraint("Diameter", 0, Q("4 mm")))
sketch8.addConstraint(Sketcher.Constraint("Diameter", 2, Q("3.5 mm")))
sketch8.addConstraint(Sketcher.Constraint("DistanceX", 0, 3, -1, 1, Q("20 mm")))
sketch8.addConstraint(Sketcher.Constraint("DistanceY", -1, 1, 0, 3, Q("41.99244 mm")))
pocket5 = body.newObject("PartDesign::Pocket", "Pocket004")
pocket5.Profile = sketch8
pocket5.Type = "ThroughAll"

# Sketch on XY plane
sketch9 = body.newObject("Sketcher::SketchObject", "Sketch008")
sketch9.AttachmentSupport = (doc.getObject("XY_Plane"), [""])
sketch9.MapMode = "FlatFace"
sketch9.AttachmentOffset = App.Placement(Vector(0, 0, 10), App.Rotation())
sketch9.addGeometry(Part.Circle(Vector(-20, 24.49244, 0), Vector(0, 0, 1), 2), False)
sketch9.addGeometry(Part.Circle(Vector(20, 24.49244, 0), Vector(0, 0, 1), 2), False)
sketch9.addGeometry(Part.Circle(Vector(20, -24.49244, 0), Vector(0, 0, 1), 2), False)
sketch9.addGeometry(Part.Circle(Vector(-20, -24.49244, 0), Vector(0, 0, 1), 2), False)
sketch9.addConstraint(Sketcher.Constraint("Equal", 0, 1))
sketch9.addConstraint(Sketcher.Constraint("Equal", 1, 2))
sketch9.addConstraint(Sketcher.Constraint("Equal", 2, 3))
sketch9.addConstraint(Sketcher.Constraint("Symmetric", 0, 3, 2, 3, -1, 1))
sketch9.addConstraint(Sketcher.Constraint("Symmetric", 1, 3, 3, 3, -1, 1))
sketch9.addConstraint(Sketcher.Constraint("Symmetric", 0, 3, 1, 3, -2))
sketch9.addConstraint(Sketcher.Constraint("Diameter", 0, Q("4 mm")))
sketch9.addConstraint(Sketcher.Constraint("DistanceX", 0, 3, -1, 1, Q("20 mm")))
sketch9.addConstraint(Sketcher.Constraint("DistanceY", -1, 1, 0, 3, Q("24.49244 mm")))
pocket6 = body.newObject("PartDesign::Pocket", "Pocket005")
pocket6.Profile = sketch9
pocket6.Type = "ThroughAll"

doc.recompute()
